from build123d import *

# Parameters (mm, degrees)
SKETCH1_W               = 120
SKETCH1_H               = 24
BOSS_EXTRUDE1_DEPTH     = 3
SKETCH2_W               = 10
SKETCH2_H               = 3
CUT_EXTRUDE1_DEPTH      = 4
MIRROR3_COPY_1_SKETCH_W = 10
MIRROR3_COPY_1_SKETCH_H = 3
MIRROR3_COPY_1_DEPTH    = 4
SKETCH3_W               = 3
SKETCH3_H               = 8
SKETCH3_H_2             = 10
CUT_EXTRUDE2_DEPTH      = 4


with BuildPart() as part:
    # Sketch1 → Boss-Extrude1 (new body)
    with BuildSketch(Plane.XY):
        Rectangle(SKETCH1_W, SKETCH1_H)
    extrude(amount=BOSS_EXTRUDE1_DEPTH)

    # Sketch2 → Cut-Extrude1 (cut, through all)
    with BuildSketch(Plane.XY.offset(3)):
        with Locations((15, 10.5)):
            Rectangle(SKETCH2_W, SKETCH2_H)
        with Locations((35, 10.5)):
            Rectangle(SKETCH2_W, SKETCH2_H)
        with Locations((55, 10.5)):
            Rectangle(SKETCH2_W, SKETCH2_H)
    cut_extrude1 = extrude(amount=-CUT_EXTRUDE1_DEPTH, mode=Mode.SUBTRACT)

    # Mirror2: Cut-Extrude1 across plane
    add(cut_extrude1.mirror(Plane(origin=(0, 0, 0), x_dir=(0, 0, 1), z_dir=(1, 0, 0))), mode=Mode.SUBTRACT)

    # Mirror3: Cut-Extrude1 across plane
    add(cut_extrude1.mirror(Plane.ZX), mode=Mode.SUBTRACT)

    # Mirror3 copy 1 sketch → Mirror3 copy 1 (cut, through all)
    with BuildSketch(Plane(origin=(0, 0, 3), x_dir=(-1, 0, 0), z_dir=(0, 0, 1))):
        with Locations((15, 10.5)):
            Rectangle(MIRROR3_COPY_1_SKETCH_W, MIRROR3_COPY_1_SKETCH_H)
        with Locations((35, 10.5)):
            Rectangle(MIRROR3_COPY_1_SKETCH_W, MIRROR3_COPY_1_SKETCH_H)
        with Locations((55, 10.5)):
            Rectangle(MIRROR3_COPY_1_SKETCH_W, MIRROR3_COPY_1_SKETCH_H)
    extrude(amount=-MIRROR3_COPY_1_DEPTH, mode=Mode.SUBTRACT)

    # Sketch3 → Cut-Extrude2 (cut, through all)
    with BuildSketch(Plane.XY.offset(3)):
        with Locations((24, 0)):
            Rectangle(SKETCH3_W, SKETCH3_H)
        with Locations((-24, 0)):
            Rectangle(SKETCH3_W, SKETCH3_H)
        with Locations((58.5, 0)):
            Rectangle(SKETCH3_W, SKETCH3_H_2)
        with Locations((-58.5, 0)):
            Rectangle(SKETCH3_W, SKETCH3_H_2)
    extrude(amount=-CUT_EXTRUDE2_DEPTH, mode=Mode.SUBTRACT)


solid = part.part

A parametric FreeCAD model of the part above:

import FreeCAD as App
import Part
import Sketcher
Q = App.Units.Quantity


def add_polygon(sketch, points):
    """Adds a closed chain of lines whose ends are joined by coincident constraints."""
    first, n = sketch.GeometryCount, len(points)
    for a, b in zip(points, points[1:] + points[:1]):
        sketch.addGeometry(Part.LineSegment(App.Vector(*a, 0), App.Vector(*b, 0)), False)
    for i in range(n):
        sketch.addConstraint(Sketcher.Constraint("Coincident", first + i, 2, first + (i + 1) % n, 1))

doc = App.newDocument("Part")
body = doc.addObject("PartDesign::Body", "Body")

sketch1 = body.newObject("Sketcher::SketchObject", "Sketch")
sketch1.AttachmentSupport = (doc.getObject("XY_Plane"), [""])
sketch1.MapMode = "FlatFace"
add_polygon(sketch1, [(-60, 12), (-60, -12), (60, -12), (60, 12)])
sketch1.addConstraint([
    Sketcher.Constraint("Vertical", 0),
    Sketcher.Constraint("Horizontal", 1),
    Sketcher.Constraint("Vertical", 2),
    Sketcher.Constraint("Horizontal", 3),
    Sketcher.Constraint("Symmetric", 0, 2, 2, 2, -1, 1),
    Sketcher.Constraint("DistanceX", 1, 1, 1, 2, Q("120 mm")),
    Sketcher.Constraint("DistanceY", 0, 2, 0, 1, Q("24 mm")),
])
pad1 = body.newObject("PartDesign::Pad", "Pad")
pad1.Profile = sketch1
pad1.Length = 3

sketch2 = body.newObject("Sketcher::SketchObject", "Sketch001")
sketch2.AttachmentSupport = (doc.getObject("XY_Plane"), [""])
sketch2.MapMode = "FlatFace"
sketch2.AttachmentOffset = App.Placement(App.Vector(0, 0, 3), App.Rotation())
add_polygon(sketch2, [(10, 12), (10, 9), (20, 9), (20, 12)])
add_polygon(sketch2, [(30, 12), (30, 9), (40, 9), (40, 12)])
add_polygon(sketch2, [(50, 12), (50, 9), (60, 9), (60, 12)])
sketch2.addConstraint([
    Sketcher.Constraint("Vertical", 0),
    Sketcher.Constraint("Horizontal", 1),
    Sketcher.Constraint("Vertical", 2),
    Sketcher.Constraint("Horizontal", 3),
    Sketcher.Constraint("Vertical", 4),
    Sketcher.Constraint("Horizontal", 5),
    Sketcher.Constraint("Vertical", 6),
    Sketcher.Constraint("Horizontal", 7),
    Sketcher.Constraint("Vertical", 8),
    Sketcher.Constraint("Horizontal", 9),
    Sketcher.Constraint("Vertical", 10),
    Sketcher.Constraint("Horizontal", 11),
    Sketcher.Constraint("Horizontal", 1, 2, 4, 2),
    Sketcher.Constraint("Horizontal", 3, 2, 6, 2),
    Sketcher.Constraint("Horizontal", 5, 2, 8, 2),
    Sketcher.Constraint("Horizontal", 7, 2, 10, 2),
    Sketcher.Constraint("Equal", 3, 5),
    Sketcher.Constraint("Equal", 7, 9),
    Sketcher.Constraint("DistanceX", 1, 1, 1, 2, Q("10 mm")),
    Sketcher.Constraint("DistanceY", 0, 2, 0, 1, Q("3 mm")),
    Sketcher.Constraint("DistanceX", -1, 1, 0, 2, Q("10 mm")),
    Sketcher.Constraint("DistanceY", -1, 1, 0, 2, Q("9 mm")),
    Sketcher.Constraint("DistanceX", -1, 1, 4, 2, Q("30 mm")),
    Sketcher.Constraint("DistanceX", -1, 1, 8, 2, Q("50 mm")),
])
pocket1 = body.newObject("PartDesign::Pocket", "Pocket")
pocket1.Profile = sketch2
pocket1.Type = "ThroughAll"
doc.recompute()

mirrored = body.newObject("PartDesign::Mirrored", "Mirrored")
mirrored.Originals = [pocket1]
mirrored.MirrorPlane = (doc.getObject("YZ_Plane"), [""])
body.Tip = mirrored
doc.recompute()

mirrored2 = body.newObject("PartDesign::Mirrored", "Mirrored001")
mirrored2.Originals = [pocket1]
mirrored2.MirrorPlane = (doc.getObject("XZ_Plane"), [""])
body.Tip = mirrored2

sketch3 = body.newObject("Sketcher::SketchObject", "Sketch002")
sketch3.AttachmentSupport = (doc.getObject("XY_Plane"), [""])
sketch3.MapMode = "FlatFace"
sketch3.AttachmentOffset = App.Placement(App.Vector(0, 0, 3), App.Rotation())
add_polygon(sketch3, [(-10, -12), (-10, -9), (-20, -9), (-20, -12)])
add_polygon(sketch3, [(-30, -12), (-30, -9), (-40, -9), (-40, -12)])
add_polygon(sketch3, [(-50, -12), (-50, -9), (-60, -9), (-60, -12)])
sketch3.addConstraint([
    Sketcher.Constraint("Vertical", 0),
    Sketcher.Constraint("Horizontal", 1),
    Sketcher.Constraint("Vertical", 2),
    Sketcher.Constraint("Horizontal", 3),
    Sketcher.Constraint("Vertical", 4),
    Sketcher.Constraint("Horizontal", 5),
    Sketcher.Constraint("Vertical", 6),
    Sketcher.Constraint("Horizontal", 7),
    Sketcher.Constraint("Vertical", 8),
    Sketcher.Constraint("Horizontal", 9),
    Sketcher.Constraint("Vertical", 10),
    Sketcher.Constraint("Horizontal", 11),
    Sketcher.Constraint("Horizontal", 1, 2, 4, 2),
    Sketcher.Constraint("Horizontal", 3, 2, 6, 2),
    Sketcher.Constraint("Horizontal", 5, 2, 8, 2),
    Sketcher.Constraint("Horizontal", 7, 2, 10, 2),
    Sketcher.Constraint("Equal", 3, 5),
    Sketcher.Constraint("Equal", 7, 9),
    Sketcher.Constraint("DistanceX", 1, 2, 1, 1, Q("10 mm")),
    Sketcher.Constraint("DistanceY", 0, 1, 0, 2, Q("3 mm")),
    Sketcher.Constraint("DistanceX", 0, 2, -1, 1, Q("10 mm")),
    Sketcher.Constraint("DistanceY", 0, 2, -1, 1, Q("9 mm")),
    Sketcher.Constraint("DistanceX", 4, 2, -1, 1, Q("30 mm")),
    Sketcher.Constraint("DistanceX", 8, 2, -1, 1, Q("50 mm")),
])
pocket2 = body.newObject("PartDesign::Pocket", "Pocket001")
pocket2.Profile = sketch3
pocket2.Type = "ThroughAll"

sketch4 = body.newObject("Sketcher::SketchObject", "Sketch003")
sketch4.AttachmentSupport = (doc.getObject("XY_Plane"), [""])
sketch4.MapMode = "FlatFace"
sketch4.AttachmentOffset = App.Placement(App.Vector(0, 0, 3), App.Rotation())
add_polygon(sketch4, [(22.5, 4), (22.5, -4), (25.5, -4), (25.5, 4)])
add_polygon(sketch4, [(-25.5, 4), (-25.5, -4), (-22.5, -4), (-22.5, 4)])
add_polygon(sketch4, [(57, 5), (57, -5), (60, -5), (60, 5)])
add_polygon(sketch4, [(-60, 5), (-60, -5), (-57, -5), (-57, 5)])
sketch4.addConstraint([
    Sketcher.Constraint("Vertical", 0),
    Sketcher.Constraint("Horizontal", 1),
    Sketcher.Constraint("Vertical", 2),
    Sketcher.Constraint("Horizontal", 3),
    Sketcher.Constraint("Vertical", 4),
    Sketcher.Constraint("Horizontal", 5),
    Sketcher.Constraint("Vertical", 6),
    Sketcher.Constraint("Horizontal", 7),
    Sketcher.Constraint("Vertical", 8),
    Sketcher.Constraint("Horizontal", 9),
    Sketcher.Constraint("Vertical", 10),
    Sketcher.Constraint("Horizontal", 11),
    Sketcher.Constraint("Vertical", 12),
    Sketcher.Constraint("Horizontal", 13),
    Sketcher.Constraint("Vertical", 14),
    Sketcher.Constraint("Horizontal", 15),
    Sketcher.Constraint("Symmetric", 2, 2, 4, 2, -1, 1),
    Sketcher.Constraint("Symmetric", 0, 2, 6, 2, -1, 1),
    Sketcher.Constraint("Symmetric", 10, 2, 12, 2, -1, 1),
    Sketcher.Constraint("Symmetric", 8, 2, 14, 2, -1, 1),
    Sketcher.Constraint("Horizontal", 1, 2, 4, 2),
    Sketcher.Constraint("Horizontal", 9, 2, 12, 2),
    Sketcher.Constraint("Equal", 7, 9),
    Sketcher.Constraint("DistanceX", 1, 1, 1, 2, Q("3 mm")),
    Sketcher.Constraint("DistanceY", 0, 2, 0, 1, Q("8 mm")),
    Sketcher.Constraint("DistanceY", 8, 2, 8, 1, Q("10 mm")),
    Sketcher.Constraint("DistanceX", -1, 1, 8, 2, Q("57 mm")),
    Sketcher.Constraint("DistanceX", 4, 2, 0, 2, Q("48 mm")),
])
pocket3 = body.newObject("PartDesign::Pocket", "Pocket002")
pocket3.Profile = sketch4
pocket3.Type = "ThroughAll"

doc.recompute()
